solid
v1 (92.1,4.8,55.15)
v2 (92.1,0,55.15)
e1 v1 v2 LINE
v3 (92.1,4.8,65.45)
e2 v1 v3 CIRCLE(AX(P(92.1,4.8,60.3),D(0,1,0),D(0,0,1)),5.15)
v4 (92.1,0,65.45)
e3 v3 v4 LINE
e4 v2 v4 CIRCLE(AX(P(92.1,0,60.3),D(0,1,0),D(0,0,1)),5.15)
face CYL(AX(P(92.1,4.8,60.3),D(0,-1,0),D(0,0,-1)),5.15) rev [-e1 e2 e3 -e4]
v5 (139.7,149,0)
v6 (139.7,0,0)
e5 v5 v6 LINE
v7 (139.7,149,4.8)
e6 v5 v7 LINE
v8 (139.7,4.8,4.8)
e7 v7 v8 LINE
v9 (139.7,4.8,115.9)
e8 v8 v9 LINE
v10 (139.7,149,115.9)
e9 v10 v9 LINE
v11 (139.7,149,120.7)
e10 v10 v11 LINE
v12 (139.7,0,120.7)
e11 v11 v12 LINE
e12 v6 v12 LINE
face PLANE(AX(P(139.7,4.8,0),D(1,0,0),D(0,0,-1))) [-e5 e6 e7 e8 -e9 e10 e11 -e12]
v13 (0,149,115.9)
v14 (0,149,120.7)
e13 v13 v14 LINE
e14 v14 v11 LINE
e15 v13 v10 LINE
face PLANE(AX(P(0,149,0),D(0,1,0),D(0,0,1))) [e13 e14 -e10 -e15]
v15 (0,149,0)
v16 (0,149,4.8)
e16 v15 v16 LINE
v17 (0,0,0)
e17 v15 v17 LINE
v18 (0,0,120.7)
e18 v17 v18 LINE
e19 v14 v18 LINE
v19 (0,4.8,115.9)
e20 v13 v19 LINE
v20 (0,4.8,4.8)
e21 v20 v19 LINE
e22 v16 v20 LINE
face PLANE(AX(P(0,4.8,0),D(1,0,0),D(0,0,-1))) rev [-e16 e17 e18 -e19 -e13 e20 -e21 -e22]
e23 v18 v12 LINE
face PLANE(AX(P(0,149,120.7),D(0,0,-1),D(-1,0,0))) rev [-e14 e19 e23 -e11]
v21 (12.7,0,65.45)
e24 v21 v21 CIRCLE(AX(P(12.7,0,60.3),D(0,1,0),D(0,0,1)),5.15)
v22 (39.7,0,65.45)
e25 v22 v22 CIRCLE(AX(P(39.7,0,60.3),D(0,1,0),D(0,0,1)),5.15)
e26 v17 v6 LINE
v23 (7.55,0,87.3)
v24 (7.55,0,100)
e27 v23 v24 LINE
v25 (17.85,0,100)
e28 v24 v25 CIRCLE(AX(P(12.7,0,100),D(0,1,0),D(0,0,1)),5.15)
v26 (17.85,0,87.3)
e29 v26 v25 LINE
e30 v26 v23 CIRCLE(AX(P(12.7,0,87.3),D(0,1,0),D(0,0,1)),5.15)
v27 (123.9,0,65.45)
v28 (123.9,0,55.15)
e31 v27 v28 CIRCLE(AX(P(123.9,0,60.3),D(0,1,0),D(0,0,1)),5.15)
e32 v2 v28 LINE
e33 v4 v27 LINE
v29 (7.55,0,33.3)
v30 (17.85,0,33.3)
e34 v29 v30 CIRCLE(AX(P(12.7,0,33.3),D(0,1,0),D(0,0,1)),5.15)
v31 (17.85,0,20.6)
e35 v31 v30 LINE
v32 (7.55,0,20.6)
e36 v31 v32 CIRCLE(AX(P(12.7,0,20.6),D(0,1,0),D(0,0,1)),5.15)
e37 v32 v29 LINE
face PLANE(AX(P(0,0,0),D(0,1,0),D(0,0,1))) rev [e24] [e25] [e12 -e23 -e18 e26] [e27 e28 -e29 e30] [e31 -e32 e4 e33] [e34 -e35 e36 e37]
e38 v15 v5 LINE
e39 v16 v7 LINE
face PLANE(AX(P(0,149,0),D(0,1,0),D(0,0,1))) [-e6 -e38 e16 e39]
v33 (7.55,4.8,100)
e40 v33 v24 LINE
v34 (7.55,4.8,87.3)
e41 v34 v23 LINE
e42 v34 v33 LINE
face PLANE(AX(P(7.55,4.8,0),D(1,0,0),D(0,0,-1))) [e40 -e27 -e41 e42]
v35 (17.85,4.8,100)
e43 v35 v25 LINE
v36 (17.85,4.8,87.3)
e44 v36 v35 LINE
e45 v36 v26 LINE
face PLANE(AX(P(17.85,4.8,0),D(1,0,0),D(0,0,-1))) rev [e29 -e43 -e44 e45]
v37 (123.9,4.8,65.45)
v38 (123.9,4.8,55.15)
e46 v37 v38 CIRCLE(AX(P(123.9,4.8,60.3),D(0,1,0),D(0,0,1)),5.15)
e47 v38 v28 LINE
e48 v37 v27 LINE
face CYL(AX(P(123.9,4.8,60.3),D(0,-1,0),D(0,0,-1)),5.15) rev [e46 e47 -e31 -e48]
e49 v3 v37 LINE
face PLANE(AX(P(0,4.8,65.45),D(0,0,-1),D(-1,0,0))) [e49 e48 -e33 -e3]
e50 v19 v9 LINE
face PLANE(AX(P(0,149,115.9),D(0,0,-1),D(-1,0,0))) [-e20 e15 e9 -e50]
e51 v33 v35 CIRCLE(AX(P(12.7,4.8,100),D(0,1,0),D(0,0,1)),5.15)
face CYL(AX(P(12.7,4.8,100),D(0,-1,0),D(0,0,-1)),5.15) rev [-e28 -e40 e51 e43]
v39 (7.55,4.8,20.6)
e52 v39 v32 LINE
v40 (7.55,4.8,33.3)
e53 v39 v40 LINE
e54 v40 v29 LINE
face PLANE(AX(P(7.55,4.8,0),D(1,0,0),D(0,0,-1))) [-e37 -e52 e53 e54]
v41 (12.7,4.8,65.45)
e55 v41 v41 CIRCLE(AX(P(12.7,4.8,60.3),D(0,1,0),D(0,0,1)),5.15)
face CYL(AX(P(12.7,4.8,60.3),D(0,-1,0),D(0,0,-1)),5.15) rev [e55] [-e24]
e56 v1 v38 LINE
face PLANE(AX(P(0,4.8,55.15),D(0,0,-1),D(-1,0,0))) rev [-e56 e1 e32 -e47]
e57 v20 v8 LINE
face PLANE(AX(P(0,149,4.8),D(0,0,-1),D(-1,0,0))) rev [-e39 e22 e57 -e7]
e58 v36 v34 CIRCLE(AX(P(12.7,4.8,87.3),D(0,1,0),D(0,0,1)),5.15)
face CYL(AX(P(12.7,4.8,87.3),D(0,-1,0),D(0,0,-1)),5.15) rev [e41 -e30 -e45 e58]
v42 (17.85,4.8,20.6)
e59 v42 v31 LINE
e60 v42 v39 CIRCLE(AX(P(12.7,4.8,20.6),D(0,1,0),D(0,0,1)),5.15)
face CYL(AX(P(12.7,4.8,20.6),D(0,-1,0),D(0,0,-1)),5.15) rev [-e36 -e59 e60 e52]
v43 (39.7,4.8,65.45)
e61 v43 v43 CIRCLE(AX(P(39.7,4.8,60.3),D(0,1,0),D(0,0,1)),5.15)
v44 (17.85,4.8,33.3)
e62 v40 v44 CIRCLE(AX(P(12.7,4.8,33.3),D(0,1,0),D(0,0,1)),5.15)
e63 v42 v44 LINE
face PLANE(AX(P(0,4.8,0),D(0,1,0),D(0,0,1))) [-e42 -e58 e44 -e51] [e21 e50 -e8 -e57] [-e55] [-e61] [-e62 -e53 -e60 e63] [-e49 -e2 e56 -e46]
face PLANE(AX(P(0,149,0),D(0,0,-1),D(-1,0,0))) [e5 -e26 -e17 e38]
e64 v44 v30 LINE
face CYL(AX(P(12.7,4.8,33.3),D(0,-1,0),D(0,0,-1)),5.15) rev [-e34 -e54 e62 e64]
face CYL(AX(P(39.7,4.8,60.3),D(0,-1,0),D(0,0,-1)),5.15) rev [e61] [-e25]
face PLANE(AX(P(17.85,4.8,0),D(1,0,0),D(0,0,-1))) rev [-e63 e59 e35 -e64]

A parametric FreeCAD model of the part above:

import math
import FreeCAD as App
import Part
import Sketcher

V = App.Vector

doc = App.newDocument("Part")
body = doc.addObject("PartDesign::Body", "Body")

sketch1 = body.newObject("Sketcher::SketchObject", "Sketch")
sketch1.AttachmentSupport = (doc.getObject("XZ_Plane"), [""])
sketch1.MapMode = "FlatFace"
sketch1.addGeometry([
    Part.LineSegment(V(0, 4.8, 0), V(0, 115.9, 0)),
    Part.LineSegment(V(0, 115.9, 0), V(139.7, 115.9, 0)),
    Part.LineSegment(V(139.7, 115.9, 0), V(139.7, 4.8, 0)),
    Part.LineSegment(V(139.7, 4.8, 0), V(0, 4.8, 0)),
    Part.LineSegment(V(7.55, 100, 0), V(7.55, 87.3, 0)),
    Part.ArcOfCircle(Part.Circle(V(12.7, 87.3, 0), V(0, 0, 1), 5.15), math.radians(180), math.radians(360)),
    Part.LineSegment(V(17.85, 87.3, 0), V(17.85, 100, 0)),
    Part.ArcOfCircle(Part.Circle(V(12.7, 100, 0), V(0, 0, 1), 5.15), math.radians(0), math.radians(180)),
    Part.Circle(V(12.7, 60.3, 0), V(0, 0, 1), 5.15),
    Part.Circle(V(39.7, 60.3, 0), V(0, 0, 1), 5.15),
    Part.ArcOfCircle(Part.Circle(V(12.7, 33.3, 0), V(0, 0, 1), 5.15), math.radians(0), math.radians(180)),
    Part.LineSegment(V(7.55, 33.3, 0), V(7.55, 20.6, 0)),
    Part.ArcOfCircle(Part.Circle(V(12.7, 20.6, 0), V(0, 0, 1), 5.15), math.radians(180), math.radians(360)),
    Part.LineSegment(V(17.85, 20.6, 0), V(17.85, 33.3, 0)),
    Part.LineSegment(V(123.9, 65.45, 0), V(92.1, 65.45, 0)),
    Part.ArcOfCircle(Part.Circle(V(92.1, 60.3, 0), V(0, 0, 1), 5.15), math.radians(90), math.radians(270)),
    Part.LineSegment(V(92.1, 55.15, 0), V(123.9, 55.15, 0)),
    Part.ArcOfCircle(Part.Circle(V(123.9, 60.3, 0), V(0, 0, 1), 5.15), math.radians(-90), math.radians(0)),
    Part.ArcOfCircle(Part.Circle(V(123.9, 60.3, 0), V(0, 0, 1), 5.15), math.radians(0), math.radians(90)),
], False)
sketch1.addConstraint([
    Sketcher.Constraint("Coincident", 0, 2, 1, 1),
    Sketcher.Constraint("Coincident", 1, 2, 2, 1),
    Sketcher.Constraint("Coincident", 2, 2, 3, 1),
    Sketcher.Constraint("Coincident", 3, 2, 0, 1),
    Sketcher.Constraint("Tangent", 4, 2, 5, 1),
    Sketcher.Constraint("Tangent", 5, 2, 6, 1),
    Sketcher.Constraint("Tangent", 6, 2, 7, 1),
    Sketcher.Constraint("Tangent", 7, 2, 4, 1),
    Sketcher.Constraint("Tangent", 10, 2, 11, 1),
    Sketcher.Constraint("Tangent", 11, 2, 12, 1),
    Sketcher.Constraint("Tangent", 12, 2, 13, 1),
    Sketcher.Constraint("Tangent", 13, 2, 10, 1),
    Sketcher.Constraint("Tangent", 14, 2, 15, 1),
    Sketcher.Constraint("Tangent", 15, 2, 16, 1),
    Sketcher.Constraint("Tangent", 16, 2, 17, 1),
    Sketcher.Constraint("Tangent", 17, 2, 18, 1),
    Sketcher.Constraint("Tangent", 18, 2, 14, 1),
    Sketcher.Constraint("Vertical", 0),
    Sketcher.Constraint("Horizontal", 1),
    Sketcher.Constraint("Vertical", 2),
    Sketcher.Constraint("Horizontal", 3),
    Sketcher.Constraint("Vertical", 4),
    Sketcher.Constraint("Vertical", 6),
    Sketcher.Constraint("Vertical", 11),
    Sketcher.Constraint("Vertical", 13),
    Sketcher.Constraint("Horizontal", 14),
    Sketcher.Constraint("Horizontal", 16),
    Sketcher.Constraint("Equal", 7, 8),
    Sketcher.Constraint("Equal", 8, 9),
    Sketcher.Constraint("Equal", 9, 10),
    Sketcher.Constraint("Equal", 12, 15),
    Sketcher.Constraint("Equal", 15, 17),
    Sketcher.Constraint("PointOnObject", 0, 2, -2),
    Sketcher.Constraint("Horizontal", 8, 3, 9, 3),
    Sketcher.Constraint("Horizontal", 9, 3, 15, 3),
    Sketcher.Constraint("Horizontal", 18, 3, 17, 2),
    Sketcher.Constraint("Vertical", 7, 3, 8, 3),
    Sketcher.Constraint("Vertical", 8, 3, 10, 3),
    Sketcher.Constraint("Equal", 6, 11),
    Sketcher.Constraint("Diameter", 8, 10.3),
    Sketcher.Constraint("DistanceX", 1, 1, 1, 2, 139.7),
    Sketcher.Constraint("DistanceX", 14, 2, 14, 1, 31.8),
    Sketcher.Constraint("DistanceY", 0, 1, 0, 2, 111.1),
    Sketcher.Constraint("DistanceY", 4, 2, 4, 1, 12.7),
    Sketcher.Constraint("DistanceY", -1, 1, 7, 3, 100.0),
    Sketcher.Constraint("DistanceY", 8, 3, 5, 3, 27.0),
    Sketcher.Constraint("DistanceX", 8, 3, 9, 3, 27.0),
    Sketcher.Constraint("DistanceY", 10, 3, 8, 3, 27.0),
    Sketcher.Constraint("DistanceX", 9, 3, 1, 2, 100.0),
    Sketcher.Constraint("DistanceX", -1, 1, 15, 3, 92.1),
    Sketcher.Constraint("DistanceY", -1, 1, 0, 2, 115.9),
])
pad1 = body.newObject("PartDesign::Pad", "Pad")
pad1.Profile = sketch1
pad1.Length = 4.8
pad1.Reversed = True

sketch2 = body.newObject("Sketcher::SketchObject", "Sketch001")
sketch2.AttachmentSupport = (doc.getObject("XZ_Plane"), [""])
sketch2.MapMode = "FlatFace"
sketch2.addGeometry([
    Part.LineSegment(V(0, 115.9, 0), V(0, 120.7, 0)),
    Part.LineSegment(V(0, 120.7, 0), V(139.7, 120.7, 0)),
    Part.LineSegment(V(139.7, 120.7, 0), V(139.7, 115.9, 0)),
    Part.LineSegment(V(139.7, 115.9, 0), V(0, 115.9, 0)),
    Part.LineSegment(V(0, 0, 0), V(0, 4.8, 0)),
    Part.LineSegment(V(0, 4.8, 0), V(139.7, 4.8, 0)),
    Part.LineSegment(V(139.7, 4.8, 0), V(139.7, 0, 0)),
    Part.LineSegment(V(139.7, 0, 0), V(0, 0, 0)),
], False)
sketch2.addConstraint([
    Sketcher.Constraint("Coincident", 0, 2, 1, 1),
    Sketcher.Constraint("Coincident", 1, 2, 2, 1),
    Sketcher.Constraint("Coincident", 2, 2, 3, 1),
    Sketcher.Constraint("Coincident", 3, 2, 0, 1),
    Sketcher.Constraint("Coincident", 4, 2, 5, 1),
    Sketcher.Constraint("Coincident", 5, 2, 6, 1),
    Sketcher.Constraint("Coincident", 6, 2, 7, 1),
    Sketcher.Constraint("Coincident", 7, 2, 4, 1),
    Sketcher.Constraint("Vertical", 0),
    Sketcher.Constraint("Horizontal", 1),
    Sketcher.Constraint("Vertical", 2),
    Sketcher.Constraint("Horizontal", 3),
    Sketcher.Constraint("Vertical", 4),
    Sketcher.Constraint("Horizontal", 5),
    Sketcher.Constraint("Vertical", 6),
    Sketcher.Constraint("Horizontal", 7),
    Sketcher.Constraint("Coincident", 7, 2, -1, 1),
    Sketcher.Constraint("PointOnObject", 0, 2, -2),
    Sketcher.Constraint("Vertical", 2, 2, 5, 2),
    Sketcher.Constraint("Equal", 2, 4),
    Sketcher.Constraint("DistanceX", 1, 1, 1, 2, 139.7),
    Sketcher.Constraint("DistanceY", 0, 1, 0, 2, 4.8),
    Sketcher.Constraint("DistanceY", -1, 1, 0, 2, 120.7),
])
pad2 = body.newObject("PartDesign::Pad", "Pad001")
pad2.Profile = sketch2
pad2.Length = 149
pad2.Reversed = True

doc.recompute()
